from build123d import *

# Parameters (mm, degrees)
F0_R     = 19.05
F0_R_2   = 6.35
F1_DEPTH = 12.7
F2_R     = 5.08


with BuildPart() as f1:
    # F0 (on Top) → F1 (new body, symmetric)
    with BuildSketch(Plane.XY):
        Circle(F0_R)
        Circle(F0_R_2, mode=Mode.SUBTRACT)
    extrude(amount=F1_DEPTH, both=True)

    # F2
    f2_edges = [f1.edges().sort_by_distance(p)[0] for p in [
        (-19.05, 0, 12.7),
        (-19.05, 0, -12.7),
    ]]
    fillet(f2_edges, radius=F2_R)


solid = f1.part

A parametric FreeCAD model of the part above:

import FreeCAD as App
import Part
import Sketcher

V = App.Vector
Q = App.Units.Quantity


def edges_at(feature, points):
    """Names of the edges that pass closest to the given points."""
    edges = feature.Shape.Edges
    near = lambda p: min(range(len(edges)), key=lambda i: edges[i].distToShape(Part.Vertex(*p))[0])
    return sorted({f"Edge{near(p) + 1}" for p in points})

doc = App.newDocument("Part")
params = doc.addObject("Spreadsheet::Sheet", "Params")
for row, (alias, value) in enumerate([
    ("sketch1_diameter", "1.5 in"),
    ("sketch1_diameter2", "0.5 in"),
    ("pad1_length", "1 in"),
    ("fillet_radius", "0.2 in"),
], start=1):
    params.set(f"A{row}", alias)
    params.set(f"B{row}", "=" + value)
    params.setAlias(f"B{row}", alias)

body = doc.addObject("PartDesign::Body", "Body")

# Sketch on XY plane
sketch1 = body.newObject("Sketcher::SketchObject", "Sketch")
sketch1.AttachmentSupport = (doc.getObject("XY_Plane"), [""])
sketch1.MapMode = "FlatFace"
sketch1.addGeometry([
    Part.Circle(V(0, 0, 0), V(0, 0, 1), 19.05),
    Part.Circle(V(0, 0, 0), V(0, 0, 1), 6.35),
], False)
sketch1.addConstraint([
    Sketcher.Constraint("Coincident", 0, 3, -1, 1),
    Sketcher.Constraint("Coincident", 1, 3, -1, 1),
    Sketcher.Constraint("Diameter", 0, Q("1.5 in")),
    Sketcher.Constraint("Diameter", 1, Q("0.5 in")),
])
sketch1.setExpression("Constraints[2]", "Params.sketch1_diameter")
sketch1.setExpression("Constraints[3]", "Params.sketch1_diameter2")
pad1 = body.newObject("PartDesign::Pad", "Pad")
pad1.Profile = sketch1
pad1.setExpression("Length", "Params.pad1_length")
pad1.Midplane = True
doc.recompute()

fillet = body.newObject("PartDesign::Fillet", "Fillet")
fillet.Base = (pad1, edges_at(pad1, [(-19.05, 0, 12.7), (-19.05, 0, -12.7)]))
fillet.setExpression("Radius", "Params.fillet_radius")

doc.recompute()
